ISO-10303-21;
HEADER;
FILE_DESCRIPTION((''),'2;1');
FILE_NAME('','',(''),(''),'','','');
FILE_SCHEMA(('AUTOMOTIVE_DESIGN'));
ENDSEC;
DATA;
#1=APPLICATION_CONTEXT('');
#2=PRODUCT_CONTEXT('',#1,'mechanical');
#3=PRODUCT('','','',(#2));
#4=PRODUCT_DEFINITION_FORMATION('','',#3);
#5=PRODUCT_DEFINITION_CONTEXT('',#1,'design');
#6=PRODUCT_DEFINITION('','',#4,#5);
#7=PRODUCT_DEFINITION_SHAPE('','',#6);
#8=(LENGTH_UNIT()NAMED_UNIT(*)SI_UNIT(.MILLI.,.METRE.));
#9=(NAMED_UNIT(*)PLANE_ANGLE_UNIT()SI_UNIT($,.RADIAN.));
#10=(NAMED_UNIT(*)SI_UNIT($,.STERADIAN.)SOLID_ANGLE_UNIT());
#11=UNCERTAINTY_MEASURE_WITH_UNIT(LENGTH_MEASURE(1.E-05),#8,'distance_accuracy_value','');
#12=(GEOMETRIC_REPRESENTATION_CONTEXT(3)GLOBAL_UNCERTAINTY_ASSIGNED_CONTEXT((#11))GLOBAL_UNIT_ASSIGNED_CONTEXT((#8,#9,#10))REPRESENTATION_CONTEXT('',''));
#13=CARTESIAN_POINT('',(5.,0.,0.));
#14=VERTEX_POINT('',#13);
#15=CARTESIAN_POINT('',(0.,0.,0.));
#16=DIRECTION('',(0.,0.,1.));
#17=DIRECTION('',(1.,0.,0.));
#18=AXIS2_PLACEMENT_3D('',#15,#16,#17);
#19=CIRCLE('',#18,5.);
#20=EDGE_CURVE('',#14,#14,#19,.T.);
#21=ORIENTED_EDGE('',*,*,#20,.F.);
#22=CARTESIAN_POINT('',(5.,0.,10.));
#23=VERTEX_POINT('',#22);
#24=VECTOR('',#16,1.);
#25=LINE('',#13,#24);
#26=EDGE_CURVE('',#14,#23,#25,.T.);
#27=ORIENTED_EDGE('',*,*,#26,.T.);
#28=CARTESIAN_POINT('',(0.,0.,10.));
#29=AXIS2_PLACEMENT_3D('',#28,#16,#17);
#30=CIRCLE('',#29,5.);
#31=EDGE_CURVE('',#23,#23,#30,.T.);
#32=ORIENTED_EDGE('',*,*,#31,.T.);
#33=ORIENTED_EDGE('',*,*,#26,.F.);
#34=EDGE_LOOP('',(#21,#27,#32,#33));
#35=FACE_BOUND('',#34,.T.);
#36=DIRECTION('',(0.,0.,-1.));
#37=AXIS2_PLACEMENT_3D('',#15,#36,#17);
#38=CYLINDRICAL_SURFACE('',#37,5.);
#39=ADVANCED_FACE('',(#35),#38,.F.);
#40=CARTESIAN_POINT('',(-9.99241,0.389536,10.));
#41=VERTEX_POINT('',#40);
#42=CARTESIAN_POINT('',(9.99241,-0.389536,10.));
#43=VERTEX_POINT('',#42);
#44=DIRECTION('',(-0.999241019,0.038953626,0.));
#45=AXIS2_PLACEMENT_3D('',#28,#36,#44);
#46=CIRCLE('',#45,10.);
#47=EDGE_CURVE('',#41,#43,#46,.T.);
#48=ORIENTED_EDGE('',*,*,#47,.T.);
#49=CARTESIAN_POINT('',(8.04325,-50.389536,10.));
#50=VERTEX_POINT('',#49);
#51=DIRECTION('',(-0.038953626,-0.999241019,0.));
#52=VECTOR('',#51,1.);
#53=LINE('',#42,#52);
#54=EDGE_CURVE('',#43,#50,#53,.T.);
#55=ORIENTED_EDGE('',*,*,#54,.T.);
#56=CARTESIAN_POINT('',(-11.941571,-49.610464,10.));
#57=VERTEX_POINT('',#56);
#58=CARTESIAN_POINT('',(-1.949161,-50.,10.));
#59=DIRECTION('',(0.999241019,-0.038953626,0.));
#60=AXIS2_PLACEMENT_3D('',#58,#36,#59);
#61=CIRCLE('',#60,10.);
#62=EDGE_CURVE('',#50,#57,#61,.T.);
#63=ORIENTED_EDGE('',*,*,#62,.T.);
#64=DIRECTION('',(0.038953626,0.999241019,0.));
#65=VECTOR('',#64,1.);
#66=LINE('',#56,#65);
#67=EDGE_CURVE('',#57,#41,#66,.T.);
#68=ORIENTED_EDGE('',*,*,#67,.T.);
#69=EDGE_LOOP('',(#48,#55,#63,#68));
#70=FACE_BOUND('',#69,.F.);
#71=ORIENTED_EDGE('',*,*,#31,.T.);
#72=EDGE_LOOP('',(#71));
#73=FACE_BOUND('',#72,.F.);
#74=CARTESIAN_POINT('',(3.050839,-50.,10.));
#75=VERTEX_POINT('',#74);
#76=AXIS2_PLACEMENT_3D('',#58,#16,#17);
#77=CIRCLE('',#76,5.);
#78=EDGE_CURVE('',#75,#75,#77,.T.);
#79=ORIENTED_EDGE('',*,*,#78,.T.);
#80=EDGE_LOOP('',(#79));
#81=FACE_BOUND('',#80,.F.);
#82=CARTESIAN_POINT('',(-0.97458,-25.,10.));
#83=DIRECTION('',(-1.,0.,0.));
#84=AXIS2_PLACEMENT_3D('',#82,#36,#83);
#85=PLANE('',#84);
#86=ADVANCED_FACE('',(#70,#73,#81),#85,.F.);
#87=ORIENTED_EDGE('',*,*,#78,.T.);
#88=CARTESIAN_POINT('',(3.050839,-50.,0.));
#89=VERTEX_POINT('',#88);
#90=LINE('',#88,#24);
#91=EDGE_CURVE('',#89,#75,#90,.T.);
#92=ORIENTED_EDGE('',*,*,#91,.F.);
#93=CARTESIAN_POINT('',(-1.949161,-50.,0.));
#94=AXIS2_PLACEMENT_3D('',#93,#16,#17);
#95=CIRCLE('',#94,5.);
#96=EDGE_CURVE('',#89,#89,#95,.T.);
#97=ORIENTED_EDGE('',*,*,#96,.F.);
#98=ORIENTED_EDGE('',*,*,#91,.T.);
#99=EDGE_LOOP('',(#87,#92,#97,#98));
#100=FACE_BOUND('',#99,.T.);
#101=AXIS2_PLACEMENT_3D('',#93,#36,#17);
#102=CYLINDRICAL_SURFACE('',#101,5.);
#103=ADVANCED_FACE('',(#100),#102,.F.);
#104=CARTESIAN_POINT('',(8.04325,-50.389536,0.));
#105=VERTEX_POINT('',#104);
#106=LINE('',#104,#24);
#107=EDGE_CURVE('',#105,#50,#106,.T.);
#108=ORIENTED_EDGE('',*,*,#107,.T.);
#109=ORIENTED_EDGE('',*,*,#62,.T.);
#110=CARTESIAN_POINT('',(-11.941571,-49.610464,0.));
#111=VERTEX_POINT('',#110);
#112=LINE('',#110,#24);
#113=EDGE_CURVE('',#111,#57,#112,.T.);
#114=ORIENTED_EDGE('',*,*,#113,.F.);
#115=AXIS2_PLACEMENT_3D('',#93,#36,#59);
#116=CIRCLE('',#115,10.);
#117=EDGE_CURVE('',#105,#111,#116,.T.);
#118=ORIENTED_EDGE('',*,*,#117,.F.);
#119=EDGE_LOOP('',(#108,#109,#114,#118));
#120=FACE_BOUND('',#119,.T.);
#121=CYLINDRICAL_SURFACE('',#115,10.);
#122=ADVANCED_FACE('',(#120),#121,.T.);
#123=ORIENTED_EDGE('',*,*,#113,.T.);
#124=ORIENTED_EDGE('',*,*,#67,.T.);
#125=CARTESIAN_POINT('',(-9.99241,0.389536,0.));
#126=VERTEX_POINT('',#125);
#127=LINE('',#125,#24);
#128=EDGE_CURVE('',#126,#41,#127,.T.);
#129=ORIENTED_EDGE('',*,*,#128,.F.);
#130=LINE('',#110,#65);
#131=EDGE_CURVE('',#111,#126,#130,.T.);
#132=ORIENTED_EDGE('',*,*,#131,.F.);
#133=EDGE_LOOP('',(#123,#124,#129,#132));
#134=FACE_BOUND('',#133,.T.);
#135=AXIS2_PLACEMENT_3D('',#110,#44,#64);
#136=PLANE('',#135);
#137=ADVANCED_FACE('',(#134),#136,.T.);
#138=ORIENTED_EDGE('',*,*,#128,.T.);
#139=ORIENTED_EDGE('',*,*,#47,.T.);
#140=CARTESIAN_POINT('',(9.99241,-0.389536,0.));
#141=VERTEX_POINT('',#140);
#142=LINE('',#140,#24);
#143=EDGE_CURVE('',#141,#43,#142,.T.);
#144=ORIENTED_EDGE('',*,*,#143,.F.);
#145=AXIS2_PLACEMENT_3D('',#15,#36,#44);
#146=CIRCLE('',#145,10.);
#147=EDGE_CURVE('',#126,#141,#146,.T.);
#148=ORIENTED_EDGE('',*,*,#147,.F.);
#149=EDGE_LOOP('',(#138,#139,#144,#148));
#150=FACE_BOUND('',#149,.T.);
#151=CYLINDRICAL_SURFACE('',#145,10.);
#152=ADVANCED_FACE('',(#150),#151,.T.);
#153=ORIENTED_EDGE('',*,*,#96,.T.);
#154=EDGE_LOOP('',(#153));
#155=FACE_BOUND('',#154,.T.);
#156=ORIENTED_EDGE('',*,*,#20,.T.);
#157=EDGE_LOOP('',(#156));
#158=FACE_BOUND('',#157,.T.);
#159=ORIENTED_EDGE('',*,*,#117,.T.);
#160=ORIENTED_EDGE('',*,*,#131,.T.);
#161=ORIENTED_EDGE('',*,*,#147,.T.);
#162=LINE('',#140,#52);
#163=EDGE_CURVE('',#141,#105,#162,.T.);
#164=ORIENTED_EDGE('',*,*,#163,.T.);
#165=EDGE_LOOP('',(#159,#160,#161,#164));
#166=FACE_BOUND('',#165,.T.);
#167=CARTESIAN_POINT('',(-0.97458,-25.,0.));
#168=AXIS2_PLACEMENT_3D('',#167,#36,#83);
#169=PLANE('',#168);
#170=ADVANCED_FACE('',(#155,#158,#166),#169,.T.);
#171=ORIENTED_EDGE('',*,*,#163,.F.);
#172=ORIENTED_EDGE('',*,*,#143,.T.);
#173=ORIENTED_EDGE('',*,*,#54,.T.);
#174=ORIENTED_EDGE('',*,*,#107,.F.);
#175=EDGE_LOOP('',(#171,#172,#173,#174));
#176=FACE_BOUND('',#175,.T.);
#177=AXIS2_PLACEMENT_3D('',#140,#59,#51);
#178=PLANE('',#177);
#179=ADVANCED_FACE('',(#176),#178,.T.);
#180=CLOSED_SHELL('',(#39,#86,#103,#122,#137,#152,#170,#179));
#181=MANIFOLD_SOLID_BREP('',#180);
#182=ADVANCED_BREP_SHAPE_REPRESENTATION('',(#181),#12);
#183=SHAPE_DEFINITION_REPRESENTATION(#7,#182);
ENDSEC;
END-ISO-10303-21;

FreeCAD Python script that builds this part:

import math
import FreeCAD as App
import Part
import Sketcher
from FreeCAD import Vector

doc = App.newDocument("Part")
body = doc.addObject("PartDesign::Body", "Body")

# Sketch on XY plane
sketch1 = doc.addObject("Sketcher::SketchObject", "Sketch")
body.addObject(sketch1)
sketch1.AttachmentSupport = (doc.XY_Plane, [""])
sketch1.MapMode = "FlatFace"
sketch1.addGeometry([
    Part.LineSegment(Vector(8, -50, 0), Vector(10, 0, 0)),  # 0
    Part.ArcOfCircle(Part.Circle(Vector(0, 0, 0), Vector(0, 0, 1), 10), math.radians(-2), math.radians(178)),  # 1
    Part.LineSegment(Vector(-10, 0, 0), Vector(-12, -50, 0)),  # 2
    Part.ArcOfCircle(Part.Circle(Vector(-2, -50, 0), Vector(0, 0, 1), 10), math.radians(178), math.radians(358)),  # 3
    Part.Circle(Vector(-2, -50, 0), Vector(0, 0, 1), 5),  # 4
    Part.Circle(Vector(0, 0, 0), Vector(0, 0, 1), 5),  # 5
], False)
sketch1.addConstraint([
    Sketcher.Constraint("Tangent", 0, 2, 1, 1),
    Sketcher.Constraint("Tangent", 1, 2, 2, 1),
    Sketcher.Constraint("Tangent", 2, 2, 3, 1),
    Sketcher.Constraint("Tangent", 3, 2, 0, 1),
    Sketcher.Constraint("Coincident", 1, 3, -1, 1),
    Sketcher.Constraint("Coincident", 5, 3, -1, 1),
    Sketcher.Constraint("Coincident", 4, 3, 3, 3),
    Sketcher.Constraint("Equal", 1, 3),
    Sketcher.Constraint("Equal", 4, 5),
    Sketcher.Constraint("Diameter", 4, 10.0),
    Sketcher.Constraint("Radius", 1, 10.0),
    Sketcher.Constraint("DistanceY", 3, 3, -1, 1, 50.0),
    Sketcher.Constraint("DistanceX", 3, 3, -1, 1, 1.949161),
])
pad1 = doc.addObject("PartDesign::Pad", "Pad")
body.addObject(pad1)
pad1.Profile = sketch1
pad1.Length = 10

doc.recompute()
